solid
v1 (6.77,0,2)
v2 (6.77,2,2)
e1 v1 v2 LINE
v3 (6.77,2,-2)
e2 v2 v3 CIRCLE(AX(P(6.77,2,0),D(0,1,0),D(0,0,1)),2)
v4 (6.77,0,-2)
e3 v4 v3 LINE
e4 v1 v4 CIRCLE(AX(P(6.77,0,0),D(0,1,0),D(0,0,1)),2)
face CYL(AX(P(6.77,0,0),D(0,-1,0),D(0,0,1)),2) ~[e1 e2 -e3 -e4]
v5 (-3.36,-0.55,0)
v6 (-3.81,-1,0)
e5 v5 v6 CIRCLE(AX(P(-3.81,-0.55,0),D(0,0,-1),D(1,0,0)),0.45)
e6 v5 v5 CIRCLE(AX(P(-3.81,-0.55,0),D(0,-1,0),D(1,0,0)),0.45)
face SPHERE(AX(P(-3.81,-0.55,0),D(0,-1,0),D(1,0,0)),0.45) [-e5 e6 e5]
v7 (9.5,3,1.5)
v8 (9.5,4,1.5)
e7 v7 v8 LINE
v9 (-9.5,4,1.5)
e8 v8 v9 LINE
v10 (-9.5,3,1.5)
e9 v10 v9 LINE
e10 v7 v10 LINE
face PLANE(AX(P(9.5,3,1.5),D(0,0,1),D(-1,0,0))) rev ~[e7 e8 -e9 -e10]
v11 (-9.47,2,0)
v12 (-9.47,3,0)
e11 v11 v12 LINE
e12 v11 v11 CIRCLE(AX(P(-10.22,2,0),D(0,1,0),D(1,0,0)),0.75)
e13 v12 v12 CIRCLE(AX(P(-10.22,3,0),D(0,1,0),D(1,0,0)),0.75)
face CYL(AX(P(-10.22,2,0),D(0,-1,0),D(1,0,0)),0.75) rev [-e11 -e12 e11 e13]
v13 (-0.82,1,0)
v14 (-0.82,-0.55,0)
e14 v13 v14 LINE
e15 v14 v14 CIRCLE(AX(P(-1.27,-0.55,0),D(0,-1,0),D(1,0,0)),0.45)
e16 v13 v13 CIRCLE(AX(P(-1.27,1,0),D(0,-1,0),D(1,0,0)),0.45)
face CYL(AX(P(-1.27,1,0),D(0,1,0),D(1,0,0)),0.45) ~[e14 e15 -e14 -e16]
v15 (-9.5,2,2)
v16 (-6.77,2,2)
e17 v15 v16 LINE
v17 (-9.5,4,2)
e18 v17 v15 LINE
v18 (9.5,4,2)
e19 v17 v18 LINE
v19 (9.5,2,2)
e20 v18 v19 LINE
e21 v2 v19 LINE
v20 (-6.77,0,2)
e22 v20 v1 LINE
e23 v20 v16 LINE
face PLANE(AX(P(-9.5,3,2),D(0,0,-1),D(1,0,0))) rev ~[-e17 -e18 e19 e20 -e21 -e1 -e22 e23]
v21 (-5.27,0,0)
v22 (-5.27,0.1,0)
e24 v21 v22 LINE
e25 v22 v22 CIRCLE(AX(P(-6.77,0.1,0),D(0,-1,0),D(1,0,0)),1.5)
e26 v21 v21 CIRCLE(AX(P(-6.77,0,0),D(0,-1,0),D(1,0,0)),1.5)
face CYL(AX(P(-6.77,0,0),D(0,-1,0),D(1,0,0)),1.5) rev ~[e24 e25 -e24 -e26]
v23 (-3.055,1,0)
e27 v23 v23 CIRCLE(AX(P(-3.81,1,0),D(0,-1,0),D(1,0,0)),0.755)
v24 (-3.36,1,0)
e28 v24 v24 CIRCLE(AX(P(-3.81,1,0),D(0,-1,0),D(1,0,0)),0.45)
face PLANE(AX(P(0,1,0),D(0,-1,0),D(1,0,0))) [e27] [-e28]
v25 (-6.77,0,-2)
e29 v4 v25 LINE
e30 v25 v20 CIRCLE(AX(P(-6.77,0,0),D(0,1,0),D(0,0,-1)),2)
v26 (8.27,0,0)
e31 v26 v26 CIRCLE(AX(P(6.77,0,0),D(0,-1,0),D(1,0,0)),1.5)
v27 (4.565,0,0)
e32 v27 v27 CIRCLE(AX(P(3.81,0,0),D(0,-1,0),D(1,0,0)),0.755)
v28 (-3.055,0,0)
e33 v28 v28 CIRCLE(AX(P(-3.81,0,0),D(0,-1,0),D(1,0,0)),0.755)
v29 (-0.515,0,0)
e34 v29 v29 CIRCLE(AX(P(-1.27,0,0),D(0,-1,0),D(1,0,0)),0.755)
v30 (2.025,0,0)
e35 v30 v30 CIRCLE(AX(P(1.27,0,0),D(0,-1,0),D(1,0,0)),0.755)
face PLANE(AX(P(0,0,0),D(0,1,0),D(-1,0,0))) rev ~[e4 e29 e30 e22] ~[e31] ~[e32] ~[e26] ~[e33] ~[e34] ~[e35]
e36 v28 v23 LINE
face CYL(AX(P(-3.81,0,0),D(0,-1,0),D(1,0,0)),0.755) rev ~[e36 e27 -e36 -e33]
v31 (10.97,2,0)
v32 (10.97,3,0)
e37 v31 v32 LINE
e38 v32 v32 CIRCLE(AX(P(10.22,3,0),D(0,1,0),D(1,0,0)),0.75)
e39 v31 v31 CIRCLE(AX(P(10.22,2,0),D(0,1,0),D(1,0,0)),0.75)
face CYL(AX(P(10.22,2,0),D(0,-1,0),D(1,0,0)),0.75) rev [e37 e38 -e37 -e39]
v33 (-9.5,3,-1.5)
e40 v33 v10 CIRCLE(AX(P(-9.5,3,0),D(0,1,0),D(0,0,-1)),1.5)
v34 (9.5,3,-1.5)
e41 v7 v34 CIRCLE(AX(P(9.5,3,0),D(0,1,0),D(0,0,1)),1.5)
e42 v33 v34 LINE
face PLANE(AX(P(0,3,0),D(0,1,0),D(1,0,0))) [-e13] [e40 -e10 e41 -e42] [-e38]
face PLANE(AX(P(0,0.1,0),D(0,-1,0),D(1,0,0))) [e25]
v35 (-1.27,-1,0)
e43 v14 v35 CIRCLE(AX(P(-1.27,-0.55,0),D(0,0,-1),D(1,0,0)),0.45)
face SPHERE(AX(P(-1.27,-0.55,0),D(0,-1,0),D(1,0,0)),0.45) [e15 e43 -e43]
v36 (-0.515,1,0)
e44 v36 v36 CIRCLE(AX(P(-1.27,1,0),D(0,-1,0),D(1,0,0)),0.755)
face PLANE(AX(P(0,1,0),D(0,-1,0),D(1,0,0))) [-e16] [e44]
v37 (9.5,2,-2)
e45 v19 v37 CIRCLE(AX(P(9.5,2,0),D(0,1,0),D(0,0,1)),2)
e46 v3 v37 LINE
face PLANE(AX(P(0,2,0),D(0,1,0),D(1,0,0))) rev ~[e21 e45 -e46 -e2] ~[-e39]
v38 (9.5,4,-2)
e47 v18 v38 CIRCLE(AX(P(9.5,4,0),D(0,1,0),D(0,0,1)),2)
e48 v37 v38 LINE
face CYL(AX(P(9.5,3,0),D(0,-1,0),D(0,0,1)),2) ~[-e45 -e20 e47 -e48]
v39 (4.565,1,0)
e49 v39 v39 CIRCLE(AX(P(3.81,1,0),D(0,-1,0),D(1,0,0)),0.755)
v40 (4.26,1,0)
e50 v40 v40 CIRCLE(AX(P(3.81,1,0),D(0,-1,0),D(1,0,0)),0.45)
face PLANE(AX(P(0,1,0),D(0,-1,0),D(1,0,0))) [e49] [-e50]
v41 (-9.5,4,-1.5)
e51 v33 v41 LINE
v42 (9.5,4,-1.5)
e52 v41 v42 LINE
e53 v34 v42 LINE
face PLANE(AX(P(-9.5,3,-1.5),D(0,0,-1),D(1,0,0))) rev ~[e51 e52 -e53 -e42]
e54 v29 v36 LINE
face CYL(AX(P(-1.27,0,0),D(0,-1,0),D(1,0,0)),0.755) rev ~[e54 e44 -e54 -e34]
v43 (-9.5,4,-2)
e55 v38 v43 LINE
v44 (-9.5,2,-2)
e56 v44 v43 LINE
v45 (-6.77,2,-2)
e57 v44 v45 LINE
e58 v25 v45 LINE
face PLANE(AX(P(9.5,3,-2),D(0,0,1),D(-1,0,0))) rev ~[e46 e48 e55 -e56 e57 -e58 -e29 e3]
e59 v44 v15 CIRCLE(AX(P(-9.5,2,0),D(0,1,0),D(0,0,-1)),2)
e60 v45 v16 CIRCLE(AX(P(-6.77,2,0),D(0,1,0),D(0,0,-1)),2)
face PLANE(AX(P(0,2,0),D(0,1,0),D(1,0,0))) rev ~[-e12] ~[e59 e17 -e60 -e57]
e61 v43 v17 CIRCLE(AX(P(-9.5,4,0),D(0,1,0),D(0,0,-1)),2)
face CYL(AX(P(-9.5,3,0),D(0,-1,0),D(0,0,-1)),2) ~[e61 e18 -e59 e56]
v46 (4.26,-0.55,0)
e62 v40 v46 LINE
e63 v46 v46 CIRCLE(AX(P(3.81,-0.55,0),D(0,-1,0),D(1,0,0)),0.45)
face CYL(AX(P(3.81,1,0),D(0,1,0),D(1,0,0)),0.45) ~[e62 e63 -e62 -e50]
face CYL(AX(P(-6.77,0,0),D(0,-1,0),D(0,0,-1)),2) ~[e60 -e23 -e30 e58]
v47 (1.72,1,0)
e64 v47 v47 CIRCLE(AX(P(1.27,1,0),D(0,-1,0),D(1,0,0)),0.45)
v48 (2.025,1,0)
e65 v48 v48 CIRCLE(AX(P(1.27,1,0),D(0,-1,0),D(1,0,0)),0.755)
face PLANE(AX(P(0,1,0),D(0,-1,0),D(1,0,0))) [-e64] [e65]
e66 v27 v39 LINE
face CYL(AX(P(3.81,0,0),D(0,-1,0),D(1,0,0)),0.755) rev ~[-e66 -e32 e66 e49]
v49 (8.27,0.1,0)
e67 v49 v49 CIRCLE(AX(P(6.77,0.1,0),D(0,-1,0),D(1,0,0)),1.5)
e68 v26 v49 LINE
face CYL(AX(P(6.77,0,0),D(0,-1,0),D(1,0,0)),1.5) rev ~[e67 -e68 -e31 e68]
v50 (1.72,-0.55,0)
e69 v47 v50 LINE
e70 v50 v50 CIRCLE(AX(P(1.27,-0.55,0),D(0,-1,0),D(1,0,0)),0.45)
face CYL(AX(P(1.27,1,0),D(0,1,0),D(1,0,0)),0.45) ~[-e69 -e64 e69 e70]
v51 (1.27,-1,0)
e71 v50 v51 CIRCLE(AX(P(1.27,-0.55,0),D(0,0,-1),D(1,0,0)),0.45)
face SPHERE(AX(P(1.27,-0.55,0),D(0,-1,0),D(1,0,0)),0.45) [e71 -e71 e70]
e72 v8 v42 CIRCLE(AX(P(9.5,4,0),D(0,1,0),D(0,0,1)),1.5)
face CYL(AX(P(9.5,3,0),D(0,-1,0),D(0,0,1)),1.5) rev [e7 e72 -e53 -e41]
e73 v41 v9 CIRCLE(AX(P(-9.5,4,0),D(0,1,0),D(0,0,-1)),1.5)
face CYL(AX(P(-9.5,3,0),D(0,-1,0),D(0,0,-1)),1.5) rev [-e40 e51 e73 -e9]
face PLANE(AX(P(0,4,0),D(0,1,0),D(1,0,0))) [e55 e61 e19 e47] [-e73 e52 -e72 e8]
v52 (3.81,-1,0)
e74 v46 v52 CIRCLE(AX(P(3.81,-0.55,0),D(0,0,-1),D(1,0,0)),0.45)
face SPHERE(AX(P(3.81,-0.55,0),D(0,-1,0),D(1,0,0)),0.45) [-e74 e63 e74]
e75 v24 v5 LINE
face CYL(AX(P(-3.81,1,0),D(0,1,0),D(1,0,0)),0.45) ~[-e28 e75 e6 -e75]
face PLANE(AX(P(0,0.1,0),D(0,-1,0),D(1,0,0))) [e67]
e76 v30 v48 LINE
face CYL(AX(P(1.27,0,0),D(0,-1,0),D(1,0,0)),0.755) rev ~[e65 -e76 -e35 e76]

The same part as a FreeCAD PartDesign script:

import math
import FreeCAD as App
import Part
import Sketcher
from FreeCAD import Vector


def edges_at(feature, points):
    """Names of the edges that pass closest to the given points."""
    edges = feature.Shape.Edges
    near = lambda p: min(range(len(edges)), key=lambda i: edges[i].distToShape(Part.Vertex(*p))[0])
    return sorted({f"Edge{near(p) + 1}" for p in points})

doc = App.newDocument("Part")
params = doc.addObject("Spreadsheet::Sheet", "Params")
for row, (alias, value) in enumerate([
    ("sketch1_radius", "2 mm"),
    ("sketch1_width", "13.54 mm"),
    ("pad1_length", "2 mm"),
    ("sketch2_radius", "2 mm"),
    ("sketch2_diameter", "1.5 mm"),
    ("sketch2_width", "19 mm"),
    ("pad2_length", "1 mm"),
    ("sketch3_radius", "2 mm"),
    ("sketch3_radius2", "1.5 mm"),
    ("sketch3_width", "19 mm"),
    ("pad3_length", "1 mm"),
    ("sketch4_diameter", "1.51 mm"),
    ("pocket1_length", "1 mm"),
    ("sketch5_diameter", "0.9 mm"),
    ("pad4_length", "2 mm"),
    ("fillet_radius", "0.45 mm"),
    ("sketch6_diameter", "3 mm"),
    ("pocket2_length", "0.1 mm"),
], start=1):
    params.set(f"A{row}", alias)
    params.set(f"B{row}", "=" + value)
    params.setAlias(f"B{row}", alias)

body = doc.addObject("PartDesign::Body", "Body")

# Sketch on XZ plane
sketch1 = body.newObject("Sketcher::SketchObject", "Sketch")
sketch1.AttachmentSupport = (doc.getObject("XZ_Plane"), [""])
sketch1.MapMode = "FlatFace"
sketch1.addGeometry([
    Part.ArcOfCircle(Part.Circle(Vector(-6.77, 0, 0), Vector(0, 0, 1), 2), math.radians(90), math.radians(270)),
    Part.LineSegment(Vector(-6.77, 2, 0), Vector(6.77, 2, 0)),
    Part.ArcOfCircle(Part.Circle(Vector(6.77, 0, 0), Vector(0, 0, 1), 2), math.radians(-90), math.radians(90)),
    Part.LineSegment(Vector(6.77, -2, 0), Vector(-6.77, -2, 0)),
], False)
sketch1.addConstraint([
    Sketcher.Constraint("Tangent", 0, 1, 1, 1),
    Sketcher.Constraint("Tangent", 1, 2, 2, 2),
    Sketcher.Constraint("Tangent", 2, 1, 3, 1),
    Sketcher.Constraint("Tangent", 3, 2, 0, 2),
    Sketcher.Constraint("Horizontal", 1),
    Sketcher.Constraint("Horizontal", 3),
    Sketcher.Constraint("Symmetric", 0, 3, 2, 3, -1, 1),
    Sketcher.Constraint("Radius", 0, 2.0),
    Sketcher.Constraint("DistanceX", 1, 1, 1, 2, 13.54),
])
sketch1.setExpression("Constraints[7]", "Params.sketch1_radius")
sketch1.setExpression("Constraints[8]", "Params.sketch1_width")
pad1 = body.newObject("PartDesign::Pad", "Pad")
pad1.Profile = sketch1
pad1.setExpression("Length", "Params.pad1_length")
pad1.Reversed = True

# Sketch on XZ plane
sketch2 = body.newObject("Sketcher::SketchObject", "Sketch001")
sketch2.AttachmentSupport = (doc.getObject("XZ_Plane"), [""])
sketch2.MapMode = "FlatFace"
sketch2.AttachmentOffset = App.Placement(Vector(0, 0, -2), App.Rotation())
sketch2.addGeometry([
    Part.ArcOfCircle(Part.Circle(Vector(9.5, 0, 0), Vector(0, 0, 1), 2), math.radians(-90), math.radians(90)),  # 0
    Part.LineSegment(Vector(9.5, -2, 0), Vector(-9.5, -2, 0)),  # 1
    Part.ArcOfCircle(Part.Circle(Vector(-9.5, 0, 0), Vector(0, 0, 1), 2), math.radians(90), math.radians(270)),  # 2
    Part.LineSegment(Vector(-9.5, 2, 0), Vector(9.5, 2, 0)),  # 3
    Part.Circle(Vector(10.22, 0, 0), Vector(0, 0, 1), 0.75),  # 4
    Part.Circle(Vector(-10.22, 0, 0), Vector(0, 0, 1), 0.75),  # 5
], False)
sketch2.addConstraint([
    Sketcher.Constraint("Tangent", 0, 1, 1, 1),
    Sketcher.Constraint("Tangent", 1, 2, 2, 2),
    Sketcher.Constraint("Tangent", 2, 1, 3, 1),
    Sketcher.Constraint("Tangent", 3, 2, 0, 2),
    Sketcher.Constraint("Horizontal", 1),
    Sketcher.Constraint("Horizontal", 3),
    Sketcher.Constraint("Equal", 4, 5),
    Sketcher.Constraint("Symmetric", 0, 3, 2, 3, -1, 1),
    Sketcher.Constraint("Symmetric", 4, 3, 5, 3, -1, 1),
    Sketcher.Constraint("PointOnObject", 4, 3, -1),
    Sketcher.Constraint("Radius", 0, 2.0),
    Sketcher.Constraint("Diameter", 4, 1.5),
    Sketcher.Constraint("DistanceX", 1, 2, 1, 1, 19.0),
    Sketcher.Constraint("DistanceX", 5, 3, 4, 3, 20.44),
])
sketch2.setExpression("Constraints[10]", "Params.sketch2_radius")
sketch2.setExpression("Constraints[11]", "Params.sketch2_diameter")
sketch2.setExpression("Constraints[12]", "Params.sketch2_width")
pad2 = body.newObject("PartDesign::Pad", "Pad001")
pad2.Profile = sketch2
pad2.setExpression("Length", "Params.pad2_length")
pad2.Reversed = True

# Sketch on XZ plane
sketch3 = body.newObject("Sketcher::SketchObject", "Sketch002")
sketch3.AttachmentSupport = (doc.getObject("XZ_Plane"), [""])
sketch3.MapMode = "FlatFace"
sketch3.AttachmentOffset = App.Placement(Vector(0, 0, -3), App.Rotation())
sketch3.addGeometry([
    Part.ArcOfCircle(Part.Circle(Vector(9.5, 0, 0), Vector(0, 0, 1), 2), math.radians(-90), math.radians(90)),  # 0
    Part.LineSegment(Vector(9.5, -2, 0), Vector(-9.5, -2, 0)),  # 1
    Part.ArcOfCircle(Part.Circle(Vector(-9.5, 0, 0), Vector(0, 0, 1), 2), math.radians(90), math.radians(270)),  # 2
    Part.LineSegment(Vector(-9.5, 2, 0), Vector(9.5, 2, 0)),  # 3
    Part.ArcOfCircle(Part.Circle(Vector(-9.5, 0, 0), Vector(0, 0, 1), 1.5), math.radians(90), math.radians(270)),  # 4
    Part.LineSegment(Vector(-9.5, -1.5, 0), Vector(9.5, -1.5, 0)),  # 5
    Part.ArcOfCircle(Part.Circle(Vector(9.5, 0, 0), Vector(0, 0, 1), 1.5), math.radians(-90), math.radians(90)),  # 6
    Part.LineSegment(Vector(9.5, 1.5, 0), Vector(-9.5, 1.5, 0)),  # 7
], False)
sketch3.addConstraint([
    Sketcher.Constraint("Tangent", 0, 1, 1, 1),
    Sketcher.Constraint("Tangent", 1, 2, 2, 2),
    Sketcher.Constraint("Tangent", 2, 1, 3, 1),
    Sketcher.Constraint("Tangent", 3, 2, 0, 2),
    Sketcher.Constraint("Tangent", 4, 2, 5, 1),
    Sketcher.Constraint("Tangent", 5, 2, 6, 1),
    Sketcher.Constraint("Tangent", 6, 2, 7, 1),
    Sketcher.Constraint("Tangent", 7, 2, 4, 1),
    Sketcher.Constraint("Horizontal", 1),
    Sketcher.Constraint("Horizontal", 3),
    Sketcher.Constraint("Horizontal", 5),
    Sketcher.Constraint("Horizontal", 7),
    Sketcher.Constraint("Coincident", 4, 3, 2, 3),
    Sketcher.Constraint("Symmetric", 0, 3, 2, 3, -1, 1),
    Sketcher.Constraint("Vertical", 6, 3, 0, 1),
    Sketcher.Constraint("Radius", 0, 2.0),
    Sketcher.Constraint("Radius", 4, 1.5),
    Sketcher.Constraint("DistanceX", 1, 2, 1, 1, 19.0),
])
sketch3.setExpression("Constraints[15]", "Params.sketch3_radius")
sketch3.setExpression("Constraints[16]", "Params.sketch3_radius2")
sketch3.setExpression("Constraints[17]", "Params.sketch3_width")
pad3 = body.newObject("PartDesign::Pad", "Pad002")
pad3.Profile = sketch3
pad3.setExpression("Length", "Params.pad3_length")
pad3.Reversed = True

# Sketch on XZ plane
sketch4 = body.newObject("Sketcher::SketchObject", "Sketch003")
sketch4.AttachmentSupport = (doc.getObject("XZ_Plane"), [""])
sketch4.MapMode = "FlatFace"
sketch4.addGeometry([
    Part.Circle(Vector(-3.81, 0, 0), Vector(0, 0, 1), 0.755),
    Part.Circle(Vector(-1.27, 0, 0), Vector(0, 0, 1), 0.755),
    Part.Circle(Vector(3.81, 0, 0), Vector(0, 0, 1), 0.755),
    Part.Circle(Vector(1.27, 0, 0), Vector(0, 0, 1), 0.755),
], False)
sketch4.addConstraint([
    Sketcher.Constraint("Equal", 0, 1),
    Sketcher.Constraint("Equal", 1, 2),
    Sketcher.Constraint("Equal", 2, 3),
    Sketcher.Constraint("Symmetric", 0, 3, 2, 3, -1, 1),
    Sketcher.Constraint("Symmetric", 1, 3, 3, 3, -1, 1),
    Sketcher.Constraint("PointOnObject", 0, 3, -1),
    Sketcher.Constraint("PointOnObject", 1, 3, -1),
    Sketcher.Constraint("Diameter", 0, 1.51),
    Sketcher.Constraint("DistanceX", 0, 3, 1, 3, 2.54),
    Sketcher.Constraint("DistanceX", 0, 3, 2, 3, 7.62),
])
sketch4.setExpression("Constraints[7]", "Params.sketch4_diameter")
pocket1 = body.newObject("PartDesign::Pocket", "Pocket")
pocket1.Profile = sketch4
pocket1.setExpression("Length", "Params.pocket1_length")

# Sketch on XZ plane
sketch5 = body.newObject("Sketcher::SketchObject", "Sketch004")
sketch5.AttachmentSupport = (doc.getObject("XZ_Plane"), [""])
sketch5.MapMode = "FlatFace"
sketch5.AttachmentOffset = App.Placement(Vector(0, 0, -1), App.Rotation())
sketch5.addGeometry([
    Part.Circle(Vector(-3.81, 0, 0), Vector(0, 0, 1), 0.45),
    Part.Circle(Vector(-1.27, 0, 0), Vector(0, 0, 1), 0.45),
    Part.Circle(Vector(1.27, 0, 0), Vector(0, 0, 1), 0.45),
    Part.Circle(Vector(3.81, 0, 0), Vector(0, 0, 1), 0.45),
], False)
sketch5.addConstraint([
    Sketcher.Constraint("Equal", 0, 1),
    Sketcher.Constraint("Equal", 1, 2),
    Sketcher.Constraint("Equal", 2, 3),
    Sketcher.Constraint("Symmetric", 1, 3, 2, 3, -1, 1),
    Sketcher.Constraint("Symmetric", 0, 3, 3, 3, -1, 1),
    Sketcher.Constraint("PointOnObject", 0, 3, -1),
    Sketcher.Constraint("PointOnObject", 1, 3, -1),
    Sketcher.Constraint("Diameter", 0, 0.9),
    Sketcher.Constraint("DistanceX", 0, 3, -1, 1, 3.81),
    Sketcher.Constraint("DistanceX", 1, 3, -1, 1, 1.27),
])
sketch5.setExpression("Constraints[7]", "Params.sketch5_diameter")
pad4 = body.newObject("PartDesign::Pad", "Pad003")
pad4.Profile = sketch5
pad4.setExpression("Length", "Params.pad4_length")
doc.recompute()

fillet = body.newObject("PartDesign::Fillet", "Fillet")
fillet.Base = (pad4, edges_at(pad4, [
    (-4.26, -1, 0),
    (-1.72, -1, 0),
    (0.82, -1, 0),
    (3.36, -1, 0),
]))
fillet.setExpression("Radius", "Params.fillet_radius")

# Sketch on XZ plane
sketch6 = body.newObject("Sketcher::SketchObject", "Sketch005")
sketch6.AttachmentSupport = (doc.getObject("XZ_Plane"), [""])
sketch6.MapMode = "FlatFace"
sketch6.addGeometry([
    Part.Circle(Vector(-6.77, 0, 0), Vector(0, 0, 1), 1.5),
    Part.Circle(Vector(6.77, 0, 0), Vector(0, 0, 1), 1.5),
], False)
sketch6.addConstraint([
    Sketcher.Constraint("Equal", 0, 1),
    Sketcher.Constraint("Symmetric", 0, 3, 1, 3, -1, 1),
    Sketcher.Constraint("PointOnObject", 0, 3, -1),
    Sketcher.Constraint("Diameter", 0, 3.0),
    Sketcher.Constraint("DistanceX", 0, 3, -1, 1, 6.77),
])
sketch6.setExpression("Constraints[3]", "Params.sketch6_diameter")
pocket2 = body.newObject("PartDesign::Pocket", "Pocket001")
pocket2.Profile = sketch6
pocket2.setExpression("Length", "Params.pocket2_length")

doc.recompute()
